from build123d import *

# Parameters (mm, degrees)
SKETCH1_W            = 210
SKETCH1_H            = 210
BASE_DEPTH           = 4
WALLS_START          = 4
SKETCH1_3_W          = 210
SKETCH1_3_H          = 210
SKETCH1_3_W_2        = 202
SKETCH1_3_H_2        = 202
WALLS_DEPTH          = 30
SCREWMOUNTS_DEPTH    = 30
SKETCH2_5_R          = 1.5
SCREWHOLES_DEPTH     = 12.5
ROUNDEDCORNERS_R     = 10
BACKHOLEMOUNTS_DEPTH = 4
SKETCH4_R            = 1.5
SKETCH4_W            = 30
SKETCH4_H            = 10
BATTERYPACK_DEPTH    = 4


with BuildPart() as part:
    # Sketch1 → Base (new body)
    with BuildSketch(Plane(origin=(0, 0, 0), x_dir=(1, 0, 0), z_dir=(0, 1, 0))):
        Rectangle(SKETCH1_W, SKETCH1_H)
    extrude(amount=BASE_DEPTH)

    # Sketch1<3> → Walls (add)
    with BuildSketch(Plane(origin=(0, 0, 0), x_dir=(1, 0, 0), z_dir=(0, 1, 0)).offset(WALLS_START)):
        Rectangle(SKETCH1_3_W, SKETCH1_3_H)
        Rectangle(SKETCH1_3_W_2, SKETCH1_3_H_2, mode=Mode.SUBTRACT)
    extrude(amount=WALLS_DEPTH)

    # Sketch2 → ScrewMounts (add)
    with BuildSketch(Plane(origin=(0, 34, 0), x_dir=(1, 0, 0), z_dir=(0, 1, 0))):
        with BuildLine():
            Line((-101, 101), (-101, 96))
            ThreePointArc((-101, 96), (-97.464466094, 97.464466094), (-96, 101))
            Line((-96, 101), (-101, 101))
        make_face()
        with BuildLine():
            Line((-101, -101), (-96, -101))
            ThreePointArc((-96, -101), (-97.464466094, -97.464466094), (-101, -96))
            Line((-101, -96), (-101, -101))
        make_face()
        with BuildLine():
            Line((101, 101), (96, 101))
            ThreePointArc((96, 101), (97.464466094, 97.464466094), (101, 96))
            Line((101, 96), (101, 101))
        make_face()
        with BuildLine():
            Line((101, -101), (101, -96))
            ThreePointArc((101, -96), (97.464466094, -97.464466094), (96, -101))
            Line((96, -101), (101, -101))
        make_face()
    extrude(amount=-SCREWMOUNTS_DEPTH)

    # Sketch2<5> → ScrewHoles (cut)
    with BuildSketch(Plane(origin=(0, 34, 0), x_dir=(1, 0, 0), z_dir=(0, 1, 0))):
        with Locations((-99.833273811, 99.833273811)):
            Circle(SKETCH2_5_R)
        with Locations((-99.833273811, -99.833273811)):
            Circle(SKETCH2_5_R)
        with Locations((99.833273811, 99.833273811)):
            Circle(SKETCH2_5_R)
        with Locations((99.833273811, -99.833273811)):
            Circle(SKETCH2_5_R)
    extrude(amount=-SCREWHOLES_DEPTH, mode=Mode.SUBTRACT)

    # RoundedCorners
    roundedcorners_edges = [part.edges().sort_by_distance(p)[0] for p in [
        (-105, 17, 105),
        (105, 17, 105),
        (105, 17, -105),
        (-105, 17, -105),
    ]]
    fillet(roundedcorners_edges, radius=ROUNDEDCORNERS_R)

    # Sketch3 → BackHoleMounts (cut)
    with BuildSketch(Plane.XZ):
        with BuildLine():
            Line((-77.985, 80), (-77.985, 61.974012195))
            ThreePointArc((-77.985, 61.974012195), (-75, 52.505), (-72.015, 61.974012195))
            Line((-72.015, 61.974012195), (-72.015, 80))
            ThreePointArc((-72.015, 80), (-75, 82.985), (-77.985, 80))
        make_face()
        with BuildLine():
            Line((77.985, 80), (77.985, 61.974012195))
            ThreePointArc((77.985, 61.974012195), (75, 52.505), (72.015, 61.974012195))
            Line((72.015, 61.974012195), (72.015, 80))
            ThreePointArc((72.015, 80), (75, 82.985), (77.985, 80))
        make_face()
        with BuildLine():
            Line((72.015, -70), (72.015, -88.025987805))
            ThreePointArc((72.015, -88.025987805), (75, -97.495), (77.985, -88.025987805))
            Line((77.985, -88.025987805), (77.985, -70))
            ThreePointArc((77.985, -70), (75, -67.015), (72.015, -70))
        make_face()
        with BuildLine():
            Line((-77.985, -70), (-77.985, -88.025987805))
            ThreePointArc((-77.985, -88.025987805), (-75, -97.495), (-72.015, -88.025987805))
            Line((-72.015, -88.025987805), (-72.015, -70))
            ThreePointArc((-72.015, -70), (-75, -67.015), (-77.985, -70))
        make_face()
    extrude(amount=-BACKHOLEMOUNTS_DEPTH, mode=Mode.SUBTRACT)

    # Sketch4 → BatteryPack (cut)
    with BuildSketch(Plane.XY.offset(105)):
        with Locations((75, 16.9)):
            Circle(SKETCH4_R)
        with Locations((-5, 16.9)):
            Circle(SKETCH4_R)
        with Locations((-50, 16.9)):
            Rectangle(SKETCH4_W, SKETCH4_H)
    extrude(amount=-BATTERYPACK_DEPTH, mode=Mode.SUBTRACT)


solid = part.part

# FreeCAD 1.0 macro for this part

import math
import FreeCAD as App
import Part
import Sketcher

V = App.Vector
Q = App.Units.Quantity


def edges_at(feature, points):
    """Names of the edges that pass closest to the given points."""
    edges = feature.Shape.Edges
    near = lambda p: min(range(len(edges)), key=lambda i: edges[i].distToShape(Part.Vertex(*p))[0])
    return sorted({f"Edge{near(p) + 1}" for p in points})


def add_polygon(sketch, points):
    """Adds a closed chain of lines whose ends are joined by coincident constraints."""
    first, n = sketch.GeometryCount, len(points)
    for a, b in zip(points, points[1:] + points[:1]):
        sketch.addGeometry(Part.LineSegment(App.Vector(*a, 0), App.Vector(*b, 0)), False)
    for i in range(n):
        sketch.addConstraint(Sketcher.Constraint("Coincident", first + i, 2, first + (i + 1) % n, 1))

doc = App.newDocument("Part")
params = doc.addObject("Spreadsheet::Sheet", "Params")
for row, (alias, value) in enumerate([
    ("sketch1_width", "210 mm"),
    ("pad1_length", "4 mm"),
    ("sketch2_width", "210 mm"),
    ("sketch2_width2", "202 mm"),
    ("pad2_length", "30 mm"),
    ("sketch3_radius", "5 mm"),
    ("pad3_length", "30 mm"),
    ("sketch4_diameter", "3 mm"),
    ("pocket1_length", "12.5 mm"),
    ("fillet_radius", "10 mm"),
    ("pocket2_length", "4 mm"),
    ("sketch6_diameter", "3 mm"),
    ("sketch6_width", "30 mm"),
    ("sketch6_height", "10 mm"),
    ("pocket3_length", "4 mm"),
], start=1):
    params.set(f"A{row}", alias)
    params.set(f"B{row}", "=" + value)
    params.setAlias(f"B{row}", alias)

body = doc.addObject("PartDesign::Body", "Body")

sketch1 = doc.addObject("Sketcher::SketchObject", "Sketch")
body.addObject(sketch1)
sketch1.AttachmentSupport = (doc.XZ_Plane, [""])
sketch1.MapMode = "FlatFace"
add_polygon(sketch1, [(-105, -105), (-105, 105), (105, 105), (105, -105)])
sketch1.addConstraint(Sketcher.Constraint("Vertical", 0))
sketch1.addConstraint(Sketcher.Constraint("Horizontal", 1))
sketch1.addConstraint(Sketcher.Constraint("Vertical", 2))
sketch1.addConstraint(Sketcher.Constraint("Horizontal", 3))
sketch1.addConstraint(Sketcher.Constraint("Symmetric", 0, 2, 2, 2, -1, 1))
sketch1.addConstraint(Sketcher.Constraint("Equal", 3, 0))
sketch1.addConstraint(Sketcher.Constraint("DistanceX", 1, 1, 1, 2, Q("210 mm")))
sketch1.setExpression("Constraints[10]", "Params.sketch1_width")
pad1 = doc.addObject("PartDesign::Pad", "Pad")
body.addObject(pad1)
pad1.Profile = sketch1
pad1.setExpression("Length", "Params.pad1_length")
pad1.Reversed = True

sketch2 = doc.addObject("Sketcher::SketchObject", "Sketch001")
body.addObject(sketch2)
sketch2.AttachmentSupport = (doc.XZ_Plane, [""])
sketch2.MapMode = "FlatFace"
sketch2.AttachmentOffset = App.Placement(V(0, 0, -4), App.Rotation())
add_polygon(sketch2, [(-105, -105), (-105, 105), (105, 105), (105, -105)])
add_polygon(sketch2, [(101, 101), (-101, 101), (-101, -101), (101, -101)])
sketch2.addConstraint(Sketcher.Constraint("Vertical", 0))
sketch2.addConstraint(Sketcher.Constraint("Horizontal", 1))
sketch2.addConstraint(Sketcher.Constraint("Vertical", 2))
sketch2.addConstraint(Sketcher.Constraint("Horizontal", 3))
sketch2.addConstraint(Sketcher.Constraint("Horizontal", 4))
sketch2.addConstraint(Sketcher.Constraint("Vertical", 5))
sketch2.addConstraint(Sketcher.Constraint("Horizontal", 6))
sketch2.addConstraint(Sketcher.Constraint("Vertical", 7))
sketch2.addConstraint(Sketcher.Constraint("Symmetric", 0, 2, 2, 2, -1, 1))
sketch2.addConstraint(Sketcher.Constraint("Symmetric", 4, 2, 6, 2, -1, 1))
sketch2.addConstraint(Sketcher.Constraint("Equal", 3, 0))
sketch2.addConstraint(Sketcher.Constraint("Equal", 6, 5))
sketch2.addConstraint(Sketcher.Constraint("DistanceX", 1, 1, 1, 2, Q("210 mm")))
sketch2.addConstraint(Sketcher.Constraint("DistanceX", 4, 2, 4, 1, Q("202 mm")))
sketch2.setExpression("Constraints[20]", "Params.sketch2_width")
sketch2.setExpression("Constraints[21]", "Params.sketch2_width2")
pad2 = doc.addObject("PartDesign::Pad", "Pad001")
body.addObject(pad2)
pad2.Profile = sketch2
pad2.setExpression("Length", "Params.pad2_length")
pad2.Reversed = True

sketch3 = doc.addObject("Sketcher::SketchObject", "Sketch002")
body.addObject(sketch3)
sketch3.AttachmentSupport = (doc.XZ_Plane, [""])
sketch3.MapMode = "FlatFace"
sketch3.AttachmentOffset = App.Placement(V(0, 0, -34), App.Rotation())
sketch3.addGeometry(Part.LineSegment(V(-101, -101, 0), V(-101, -96, 0)), False)
sketch3.addGeometry(Part.ArcOfCircle(Part.Circle(V(-101, -101, 0), V(0, 0, 1), 5), math.radians(0), math.radians(90)), False)
sketch3.addGeometry(Part.LineSegment(V(-96, -101, 0), V(-101, -101, 0)), False)
sketch3.addGeometry(Part.LineSegment(V(-101, 101, 0), V(-96, 101, 0)), False)
sketch3.addGeometry(Part.ArcOfCircle(Part.Circle(V(-101, 101, 0), V(0, 0, 1), 5), math.radians(-90), math.radians(0)), False)
sketch3.addGeometry(Part.LineSegment(V(-101, 96, 0), V(-101, 101, 0)), False)
sketch3.addGeometry(Part.LineSegment(V(101, -101, 0), V(96, -101, 0)), False)
sketch3.addGeometry(Part.ArcOfCircle(Part.Circle(V(101, -101, 0), V(0, 0, 1), 5), math.radians(90), math.radians(180)), False)
sketch3.addGeometry(Part.LineSegment(V(101, -96, 0), V(101, -101, 0)), False)
sketch3.addGeometry(Part.LineSegment(V(101, 101, 0), V(101, 96, 0)), False)
sketch3.addGeometry(Part.ArcOfCircle(Part.Circle(V(101, 101, 0), V(0, 0, 1), 5), math.radians(180), math.radians(270)), False)
sketch3.addGeometry(Part.LineSegment(V(96, 101, 0), V(101, 101, 0)), False)
sketch3.addConstraint(Sketcher.Constraint("Coincident", 0, 2, 1, 2))
sketch3.addConstraint(Sketcher.Constraint("Coincident", 1, 1, 2, 1))
sketch3.addConstraint(Sketcher.Constraint("Coincident", 2, 2, 0, 1))
sketch3.addConstraint(Sketcher.Constraint("Coincident", 3, 2, 4, 2))
sketch3.addConstraint(Sketcher.Constraint("Coincident", 4, 1, 5, 1))
sketch3.addConstraint(Sketcher.Constraint("Coincident", 5, 2, 3, 1))
sketch3.addConstraint(Sketcher.Constraint("Coincident", 6, 2, 7, 2))
sketch3.addConstraint(Sketcher.Constraint("Coincident", 7, 1, 8, 1))
sketch3.addConstraint(Sketcher.Constraint("Coincident", 8, 2, 6, 1))
sketch3.addConstraint(Sketcher.Constraint("Coincident", 9, 2, 10, 2))
sketch3.addConstraint(Sketcher.Constraint("Coincident", 10, 1, 11, 1))
sketch3.addConstraint(Sketcher.Constraint("Coincident", 11, 2, 9, 1))
sketch3.addConstraint(Sketcher.Constraint("Vertical", 0))
sketch3.addConstraint(Sketcher.Constraint("Horizontal", 2))
sketch3.addConstraint(Sketcher.Constraint("Horizontal", 3))
sketch3.addConstraint(Sketcher.Constraint("Vertical", 5))
sketch3.addConstraint(Sketcher.Constraint("Horizontal", 6))
sketch3.addConstraint(Sketcher.Constraint("Vertical", 8))
sketch3.addConstraint(Sketcher.Constraint("Vertical", 9))
sketch3.addConstraint(Sketcher.Constraint("Horizontal", 11))
sketch3.addConstraint(Sketcher.Constraint("Coincident", 2, 2, 1, 3))
sketch3.addConstraint(Sketcher.Constraint("Coincident", 5, 2, 4, 3))
sketch3.addConstraint(Sketcher.Constraint("Coincident", 8, 2, 7, 3))
sketch3.addConstraint(Sketcher.Constraint("Coincident", 11, 2, 10, 3))
sketch3.addConstraint(Sketcher.Constraint("Equal", 1, 4))
sketch3.addConstraint(Sketcher.Constraint("Equal", 4, 7))
sketch3.addConstraint(Sketcher.Constraint("Equal", 7, 10))
sketch3.addConstraint(Sketcher.Constraint("Symmetric", 4, 3, 7, 3, -1, 1))
sketch3.addConstraint(Sketcher.Constraint("Symmetric", 1, 3, 10, 3, -1, 1))
sketch3.addConstraint(Sketcher.Constraint("Symmetric", 1, 3, 7, 3, -2))
sketch3.addConstraint(Sketcher.Constraint("Radius", 1, Q("5 mm")))
sketch3.addConstraint(Sketcher.Constraint("DistanceX", 1, 3, -1, 1, Q("101 mm")))
sketch3.addConstraint(Sketcher.Constraint("DistanceY", 1, 3, -1, 1, Q("101 mm")))
sketch3.setExpression("Constraints[30]", "Params.sketch3_radius")
pad3 = doc.addObject("PartDesign::Pad", "Pad002")
body.addObject(pad3)
pad3.Profile = sketch3
pad3.setExpression("Length", "Params.pad3_length")

sketch4 = doc.addObject("Sketcher::SketchObject", "Sketch003")
body.addObject(sketch4)
sketch4.AttachmentSupport = (doc.XZ_Plane, [""])
sketch4.MapMode = "FlatFace"
sketch4.AttachmentOffset = App.Placement(V(0, 0, -34), App.Rotation())
sketch4.addGeometry(Part.Circle(V(-99.8, -99.8, 0), V(0, 0, 1), 1.5), False)
sketch4.addGeometry(Part.Circle(V(-99.8, 99.8, 0), V(0, 0, 1), 1.5), False)
sketch4.addGeometry(Part.Circle(V(99.8, -99.8, 0), V(0, 0, 1), 1.5), False)
sketch4.addGeometry(Part.Circle(V(99.8, 99.8, 0), V(0, 0, 1), 1.5), False)
sketch4.addConstraint(Sketcher.Constraint("Equal", 0, 1))
sketch4.addConstraint(Sketcher.Constraint("Equal", 1, 2))
sketch4.addConstraint(Sketcher.Constraint("Equal", 2, 3))
sketch4.addConstraint(Sketcher.Constraint("Symmetric", 1, 3, 2, 3, -1, 1))
sketch4.addConstraint(Sketcher.Constraint("Symmetric", 0, 3, 3, 3, -1, 1))
sketch4.addConstraint(Sketcher.Constraint("Symmetric", 0, 3, 2, 3, -2))
sketch4.addConstraint(Sketcher.Constraint("Diameter", 0, Q("3 mm")))
sketch4.addConstraint(Sketcher.Constraint("DistanceX", 0, 3, -1, 1, Q("99.833274 mm")))
sketch4.addConstraint(Sketcher.Constraint("DistanceY", 0, 3, -1, 1, Q("99.833274 mm")))
sketch4.setExpression("Constraints[6]", "Params.sketch4_diameter")
pocket1 = doc.addObject("PartDesign::Pocket", "Pocket")
body.addObject(pocket1)
pocket1.Profile = sketch4
pocket1.setExpression("Length", "Params.pocket1_length")
pocket1.Reversed = True
doc.recompute()

fillet = doc.addObject("PartDesign::Fillet", "Fillet")
body.addObject(fillet)
fillet.Base = (pocket1, edges_at(pocket1, [
    (-105, 17, 105),
    (105, 17, 105),
    (105, 17, -105),
    (-105, 17, -105),
]))
fillet.setExpression("Radius", "Params.fillet_radius")

sketch5 = doc.addObject("Sketcher::SketchObject", "Sketch004")
body.addObject(sketch5)
sketch5.AttachmentSupport = (doc.XZ_Plane, [""])
sketch5.MapMode = "FlatFace"
sketch5.addGeometry(Part.LineSegment(V(-78, 80, 0), V(-78, 62, 0)), False)
sketch5.addGeometry(Part.ArcOfCircle(Part.Circle(V(-75, 57.7, 0), V(0, 0, 1), 5.2), math.radians(125), math.radians(415)), False)
sketch5.addGeometry(Part.LineSegment(V(-72, 62, 0), V(-72, 80, 0)), False)
sketch5.addGeometry(Part.ArcOfCircle(Part.Circle(V(-75, 80, 0), V(0, 0, 1), 3), math.radians(0), math.radians(180)), False)
sketch5.addGeometry(Part.LineSegment(V(78, 62, 0), V(78, 80, 0)), False)
sketch5.addGeometry(Part.ArcOfCircle(Part.Circle(V(75, 80, 0), V(0, 0, 1), 3), math.radians(0), math.radians(180)), False)
sketch5.addGeometry(Part.LineSegment(V(72, 80, 0), V(72, 62, 0)), False)
sketch5.addGeometry(Part.ArcOfCircle(Part.Circle(V(75, 57.7, 0), V(0, 0, 1), 5.2), math.radians(125), math.radians(415)), False)
sketch5.addGeometry(Part.LineSegment(V(72, -70, 0), V(72, -88, 0)), False)
sketch5.addGeometry(Part.ArcOfCircle(Part.Circle(V(75, -92.3, 0), V(0, 0, 1), 5.2), math.radians(125), math.radians(415)), False)
sketch5.addGeometry(Part.LineSegment(V(78, -88, 0), V(78, -70, 0)), False)
sketch5.addGeometry(Part.ArcOfCircle(Part.Circle(V(75, -70, 0), V(0, 0, 1), 3), math.radians(0), math.radians(180)), False)
sketch5.addGeometry(Part.LineSegment(V(-78, -70, 0), V(-78, -88, 0)), False)
sketch5.addGeometry(Part.ArcOfCircle(Part.Circle(V(-75, -92.3, 0), V(0, 0, 1), 5.2), math.radians(125), math.radians(415)), False)
sketch5.addGeometry(Part.LineSegment(V(-72, -88, 0), V(-72, -70, 0)), False)
sketch5.addGeometry(Part.ArcOfCircle(Part.Circle(V(-75, -70, 0), V(0, 0, 1), 3), math.radians(0), math.radians(180)), False)
sketch5.addConstraint(Sketcher.Constraint("Coincident", 0, 2, 1, 1))
sketch5.addConstraint(Sketcher.Constraint("Coincident", 1, 2, 2, 1))
sketch5.addConstraint(Sketcher.Constraint("Tangent", 2, 2, 3, 1))
sketch5.addConstraint(Sketcher.Constraint("Tangent", 3, 2, 0, 1))
sketch5.addConstraint(Sketcher.Constraint("Tangent", 4, 2, 5, 1))
sketch5.addConstraint(Sketcher.Constraint("Tangent", 5, 2, 6, 1))
sketch5.addConstraint(Sketcher.Constraint("Coincident", 6, 2, 7, 1))
sketch5.addConstraint(Sketcher.Constraint("Coincident", 7, 2, 4, 1))
sketch5.addConstraint(Sketcher.Constraint("Coincident", 8, 2, 9, 1))
sketch5.addConstraint(Sketcher.Constraint("Coincident", 9, 2, 10, 1))
sketch5.addConstraint(Sketcher.Constraint("Tangent", 10, 2, 11, 1))
sketch5.addConstraint(Sketcher.Constraint("Tangent", 11, 2, 8, 1))
sketch5.addConstraint(Sketcher.Constraint("Coincident", 12, 2, 13, 1))
sketch5.addConstraint(Sketcher.Constraint("Coincident", 13, 2, 14, 1))
sketch5.addConstraint(Sketcher.Constraint("Tangent", 14, 2, 15, 1))
sketch5.addConstraint(Sketcher.Constraint("Tangent", 15, 2, 12, 1))
sketch5.addConstraint(Sketcher.Constraint("Vertical", 0))
sketch5.addConstraint(Sketcher.Constraint("Vertical", 2))
sketch5.addConstraint(Sketcher.Constraint("Vertical", 4))
sketch5.addConstraint(Sketcher.Constraint("Vertical", 6))
sketch5.addConstraint(Sketcher.Constraint("Vertical", 8))
sketch5.addConstraint(Sketcher.Constraint("Vertical", 10))
sketch5.addConstraint(Sketcher.Constraint("Vertical", 12))
sketch5.addConstraint(Sketcher.Constraint("Vertical", 14))
sketch5.addConstraint(Sketcher.Constraint("Equal", 3, 5))
sketch5.addConstraint(Sketcher.Constraint("Equal", 1, 7))
sketch5.addConstraint(Sketcher.Constraint("Equal", 7, 9))
sketch5.addConstraint(Sketcher.Constraint("Equal", 5, 11))
sketch5.addConstraint(Sketcher.Constraint("Equal", 9, 13))
sketch5.addConstraint(Sketcher.Constraint("Equal", 11, 15))
sketch5.addConstraint(Sketcher.Constraint("Symmetric", 3, 3, 5, 3, -2))
sketch5.addConstraint(Sketcher.Constraint("Symmetric", 1, 3, 7, 3, -2))
sketch5.addConstraint(Sketcher.Constraint("Symmetric", 9, 3, 13, 3, -2))
sketch5.addConstraint(Sketcher.Constraint("Symmetric", 11, 3, 15, 3, -2))
sketch5.addConstraint(Sketcher.Constraint("Horizontal", 0, 2, 1, 2))
sketch5.addConstraint(Sketcher.Constraint("Horizontal", 8, 2, 9, 2))
sketch5.addConstraint(Sketcher.Constraint("Vertical", 7, 3, 9, 3))
sketch5.addConstraint(Sketcher.Constraint("Equal", 6, 8))
sketch5.addConstraint(Sketcher.Constraint("DistanceX", 1, 3, -1, 1, Q("75 mm")))
sketch5.addConstraint(Sketcher.Constraint("DistanceY", -1, 1, 3, 3, Q("80 mm")))
sketch5.addConstraint(Sketcher.Constraint("DistanceY", 11, 3, -1, 1, Q("70 mm")))
sketch5.addConstraint(Sketcher.Constraint("Radius", 1, Q("5.205 mm")))
sketch5.addConstraint(Sketcher.Constraint("Radius", 3, Q("2.985 mm")))
sketch5.addConstraint(Sketcher.Constraint("DistanceY", -1, 1, 1, 3, Q("57.71 mm")))
pocket2 = doc.addObject("PartDesign::Pocket", "Pocket001")
body.addObject(pocket2)
pocket2.Profile = sketch5
pocket2.setExpression("Length", "Params.pocket2_length")

sketch6 = doc.addObject("Sketcher::SketchObject", "Sketch005")
body.addObject(sketch6)
sketch6.AttachmentSupport = (doc.XY_Plane, [""])
sketch6.MapMode = "FlatFace"
sketch6.AttachmentOffset = App.Placement(V(0, 0, 105), App.Rotation())
sketch6.addGeometry(Part.Circle(V(75, 16.9, 0), V(0, 0, 1), 1.5), False)
sketch6.addGeometry(Part.Circle(V(-5, 16.9, 0), V(0, 0, 1), 1.5), False)
add_polygon(sketch6, [(-65, 21.9), (-65, 11.9), (-35, 11.9), (-35, 21.9)])
sketch6.addConstraint(Sketcher.Constraint("Vertical", 2))
sketch6.addConstraint(Sketcher.Constraint("Horizontal", 3))
sketch6.addConstraint(Sketcher.Constraint("Vertical", 4))
sketch6.addConstraint(Sketcher.Constraint("Horizontal", 5))
sketch6.addConstraint(Sketcher.Constraint("Equal", 0, 1))
sketch6.addConstraint(Sketcher.Constraint("Horizontal", 0, 3, 1, 3))
sketch6.addConstraint(Sketcher.Constraint("Diameter", 0, Q("3 mm")))
sketch6.addConstraint(Sketcher.Constraint("DistanceX", 3, 1, 3, 2, Q("30 mm")))
sketch6.addConstraint(Sketcher.Constraint("DistanceY", 2, 2, 2, 1, Q("10 mm")))
sketch6.addConstraint(Sketcher.Constraint("DistanceX", -1, 1, 0, 3, Q("75 mm")))
sketch6.addConstraint(Sketcher.Constraint("DistanceX", 1, 3, -1, 1, Q("5 mm")))
sketch6.addConstraint(Sketcher.Constraint("DistanceX", 2, 2, -1, 1, Q("65 mm")))
sketch6.addConstraint(Sketcher.Constraint("DistanceY", 2, 2, 1, 3, Q("5 mm")))
sketch6.addConstraint(Sketcher.Constraint("DistanceY", -1, 1, 0, 3, Q("16.9 mm")))
sketch6.setExpression("Constraints[10]", "Params.sketch6_diameter")
sketch6.setExpression("Constraints[11]", "Params.sketch6_width")
sketch6.setExpression("Constraints[12]", "Params.sketch6_height")
pocket3 = doc.addObject("PartDesign::Pocket", "Pocket002")
body.addObject(pocket3)
pocket3.Profile = sketch6
pocket3.setExpression("Length", "Params.pocket3_length")

doc.recompute()
